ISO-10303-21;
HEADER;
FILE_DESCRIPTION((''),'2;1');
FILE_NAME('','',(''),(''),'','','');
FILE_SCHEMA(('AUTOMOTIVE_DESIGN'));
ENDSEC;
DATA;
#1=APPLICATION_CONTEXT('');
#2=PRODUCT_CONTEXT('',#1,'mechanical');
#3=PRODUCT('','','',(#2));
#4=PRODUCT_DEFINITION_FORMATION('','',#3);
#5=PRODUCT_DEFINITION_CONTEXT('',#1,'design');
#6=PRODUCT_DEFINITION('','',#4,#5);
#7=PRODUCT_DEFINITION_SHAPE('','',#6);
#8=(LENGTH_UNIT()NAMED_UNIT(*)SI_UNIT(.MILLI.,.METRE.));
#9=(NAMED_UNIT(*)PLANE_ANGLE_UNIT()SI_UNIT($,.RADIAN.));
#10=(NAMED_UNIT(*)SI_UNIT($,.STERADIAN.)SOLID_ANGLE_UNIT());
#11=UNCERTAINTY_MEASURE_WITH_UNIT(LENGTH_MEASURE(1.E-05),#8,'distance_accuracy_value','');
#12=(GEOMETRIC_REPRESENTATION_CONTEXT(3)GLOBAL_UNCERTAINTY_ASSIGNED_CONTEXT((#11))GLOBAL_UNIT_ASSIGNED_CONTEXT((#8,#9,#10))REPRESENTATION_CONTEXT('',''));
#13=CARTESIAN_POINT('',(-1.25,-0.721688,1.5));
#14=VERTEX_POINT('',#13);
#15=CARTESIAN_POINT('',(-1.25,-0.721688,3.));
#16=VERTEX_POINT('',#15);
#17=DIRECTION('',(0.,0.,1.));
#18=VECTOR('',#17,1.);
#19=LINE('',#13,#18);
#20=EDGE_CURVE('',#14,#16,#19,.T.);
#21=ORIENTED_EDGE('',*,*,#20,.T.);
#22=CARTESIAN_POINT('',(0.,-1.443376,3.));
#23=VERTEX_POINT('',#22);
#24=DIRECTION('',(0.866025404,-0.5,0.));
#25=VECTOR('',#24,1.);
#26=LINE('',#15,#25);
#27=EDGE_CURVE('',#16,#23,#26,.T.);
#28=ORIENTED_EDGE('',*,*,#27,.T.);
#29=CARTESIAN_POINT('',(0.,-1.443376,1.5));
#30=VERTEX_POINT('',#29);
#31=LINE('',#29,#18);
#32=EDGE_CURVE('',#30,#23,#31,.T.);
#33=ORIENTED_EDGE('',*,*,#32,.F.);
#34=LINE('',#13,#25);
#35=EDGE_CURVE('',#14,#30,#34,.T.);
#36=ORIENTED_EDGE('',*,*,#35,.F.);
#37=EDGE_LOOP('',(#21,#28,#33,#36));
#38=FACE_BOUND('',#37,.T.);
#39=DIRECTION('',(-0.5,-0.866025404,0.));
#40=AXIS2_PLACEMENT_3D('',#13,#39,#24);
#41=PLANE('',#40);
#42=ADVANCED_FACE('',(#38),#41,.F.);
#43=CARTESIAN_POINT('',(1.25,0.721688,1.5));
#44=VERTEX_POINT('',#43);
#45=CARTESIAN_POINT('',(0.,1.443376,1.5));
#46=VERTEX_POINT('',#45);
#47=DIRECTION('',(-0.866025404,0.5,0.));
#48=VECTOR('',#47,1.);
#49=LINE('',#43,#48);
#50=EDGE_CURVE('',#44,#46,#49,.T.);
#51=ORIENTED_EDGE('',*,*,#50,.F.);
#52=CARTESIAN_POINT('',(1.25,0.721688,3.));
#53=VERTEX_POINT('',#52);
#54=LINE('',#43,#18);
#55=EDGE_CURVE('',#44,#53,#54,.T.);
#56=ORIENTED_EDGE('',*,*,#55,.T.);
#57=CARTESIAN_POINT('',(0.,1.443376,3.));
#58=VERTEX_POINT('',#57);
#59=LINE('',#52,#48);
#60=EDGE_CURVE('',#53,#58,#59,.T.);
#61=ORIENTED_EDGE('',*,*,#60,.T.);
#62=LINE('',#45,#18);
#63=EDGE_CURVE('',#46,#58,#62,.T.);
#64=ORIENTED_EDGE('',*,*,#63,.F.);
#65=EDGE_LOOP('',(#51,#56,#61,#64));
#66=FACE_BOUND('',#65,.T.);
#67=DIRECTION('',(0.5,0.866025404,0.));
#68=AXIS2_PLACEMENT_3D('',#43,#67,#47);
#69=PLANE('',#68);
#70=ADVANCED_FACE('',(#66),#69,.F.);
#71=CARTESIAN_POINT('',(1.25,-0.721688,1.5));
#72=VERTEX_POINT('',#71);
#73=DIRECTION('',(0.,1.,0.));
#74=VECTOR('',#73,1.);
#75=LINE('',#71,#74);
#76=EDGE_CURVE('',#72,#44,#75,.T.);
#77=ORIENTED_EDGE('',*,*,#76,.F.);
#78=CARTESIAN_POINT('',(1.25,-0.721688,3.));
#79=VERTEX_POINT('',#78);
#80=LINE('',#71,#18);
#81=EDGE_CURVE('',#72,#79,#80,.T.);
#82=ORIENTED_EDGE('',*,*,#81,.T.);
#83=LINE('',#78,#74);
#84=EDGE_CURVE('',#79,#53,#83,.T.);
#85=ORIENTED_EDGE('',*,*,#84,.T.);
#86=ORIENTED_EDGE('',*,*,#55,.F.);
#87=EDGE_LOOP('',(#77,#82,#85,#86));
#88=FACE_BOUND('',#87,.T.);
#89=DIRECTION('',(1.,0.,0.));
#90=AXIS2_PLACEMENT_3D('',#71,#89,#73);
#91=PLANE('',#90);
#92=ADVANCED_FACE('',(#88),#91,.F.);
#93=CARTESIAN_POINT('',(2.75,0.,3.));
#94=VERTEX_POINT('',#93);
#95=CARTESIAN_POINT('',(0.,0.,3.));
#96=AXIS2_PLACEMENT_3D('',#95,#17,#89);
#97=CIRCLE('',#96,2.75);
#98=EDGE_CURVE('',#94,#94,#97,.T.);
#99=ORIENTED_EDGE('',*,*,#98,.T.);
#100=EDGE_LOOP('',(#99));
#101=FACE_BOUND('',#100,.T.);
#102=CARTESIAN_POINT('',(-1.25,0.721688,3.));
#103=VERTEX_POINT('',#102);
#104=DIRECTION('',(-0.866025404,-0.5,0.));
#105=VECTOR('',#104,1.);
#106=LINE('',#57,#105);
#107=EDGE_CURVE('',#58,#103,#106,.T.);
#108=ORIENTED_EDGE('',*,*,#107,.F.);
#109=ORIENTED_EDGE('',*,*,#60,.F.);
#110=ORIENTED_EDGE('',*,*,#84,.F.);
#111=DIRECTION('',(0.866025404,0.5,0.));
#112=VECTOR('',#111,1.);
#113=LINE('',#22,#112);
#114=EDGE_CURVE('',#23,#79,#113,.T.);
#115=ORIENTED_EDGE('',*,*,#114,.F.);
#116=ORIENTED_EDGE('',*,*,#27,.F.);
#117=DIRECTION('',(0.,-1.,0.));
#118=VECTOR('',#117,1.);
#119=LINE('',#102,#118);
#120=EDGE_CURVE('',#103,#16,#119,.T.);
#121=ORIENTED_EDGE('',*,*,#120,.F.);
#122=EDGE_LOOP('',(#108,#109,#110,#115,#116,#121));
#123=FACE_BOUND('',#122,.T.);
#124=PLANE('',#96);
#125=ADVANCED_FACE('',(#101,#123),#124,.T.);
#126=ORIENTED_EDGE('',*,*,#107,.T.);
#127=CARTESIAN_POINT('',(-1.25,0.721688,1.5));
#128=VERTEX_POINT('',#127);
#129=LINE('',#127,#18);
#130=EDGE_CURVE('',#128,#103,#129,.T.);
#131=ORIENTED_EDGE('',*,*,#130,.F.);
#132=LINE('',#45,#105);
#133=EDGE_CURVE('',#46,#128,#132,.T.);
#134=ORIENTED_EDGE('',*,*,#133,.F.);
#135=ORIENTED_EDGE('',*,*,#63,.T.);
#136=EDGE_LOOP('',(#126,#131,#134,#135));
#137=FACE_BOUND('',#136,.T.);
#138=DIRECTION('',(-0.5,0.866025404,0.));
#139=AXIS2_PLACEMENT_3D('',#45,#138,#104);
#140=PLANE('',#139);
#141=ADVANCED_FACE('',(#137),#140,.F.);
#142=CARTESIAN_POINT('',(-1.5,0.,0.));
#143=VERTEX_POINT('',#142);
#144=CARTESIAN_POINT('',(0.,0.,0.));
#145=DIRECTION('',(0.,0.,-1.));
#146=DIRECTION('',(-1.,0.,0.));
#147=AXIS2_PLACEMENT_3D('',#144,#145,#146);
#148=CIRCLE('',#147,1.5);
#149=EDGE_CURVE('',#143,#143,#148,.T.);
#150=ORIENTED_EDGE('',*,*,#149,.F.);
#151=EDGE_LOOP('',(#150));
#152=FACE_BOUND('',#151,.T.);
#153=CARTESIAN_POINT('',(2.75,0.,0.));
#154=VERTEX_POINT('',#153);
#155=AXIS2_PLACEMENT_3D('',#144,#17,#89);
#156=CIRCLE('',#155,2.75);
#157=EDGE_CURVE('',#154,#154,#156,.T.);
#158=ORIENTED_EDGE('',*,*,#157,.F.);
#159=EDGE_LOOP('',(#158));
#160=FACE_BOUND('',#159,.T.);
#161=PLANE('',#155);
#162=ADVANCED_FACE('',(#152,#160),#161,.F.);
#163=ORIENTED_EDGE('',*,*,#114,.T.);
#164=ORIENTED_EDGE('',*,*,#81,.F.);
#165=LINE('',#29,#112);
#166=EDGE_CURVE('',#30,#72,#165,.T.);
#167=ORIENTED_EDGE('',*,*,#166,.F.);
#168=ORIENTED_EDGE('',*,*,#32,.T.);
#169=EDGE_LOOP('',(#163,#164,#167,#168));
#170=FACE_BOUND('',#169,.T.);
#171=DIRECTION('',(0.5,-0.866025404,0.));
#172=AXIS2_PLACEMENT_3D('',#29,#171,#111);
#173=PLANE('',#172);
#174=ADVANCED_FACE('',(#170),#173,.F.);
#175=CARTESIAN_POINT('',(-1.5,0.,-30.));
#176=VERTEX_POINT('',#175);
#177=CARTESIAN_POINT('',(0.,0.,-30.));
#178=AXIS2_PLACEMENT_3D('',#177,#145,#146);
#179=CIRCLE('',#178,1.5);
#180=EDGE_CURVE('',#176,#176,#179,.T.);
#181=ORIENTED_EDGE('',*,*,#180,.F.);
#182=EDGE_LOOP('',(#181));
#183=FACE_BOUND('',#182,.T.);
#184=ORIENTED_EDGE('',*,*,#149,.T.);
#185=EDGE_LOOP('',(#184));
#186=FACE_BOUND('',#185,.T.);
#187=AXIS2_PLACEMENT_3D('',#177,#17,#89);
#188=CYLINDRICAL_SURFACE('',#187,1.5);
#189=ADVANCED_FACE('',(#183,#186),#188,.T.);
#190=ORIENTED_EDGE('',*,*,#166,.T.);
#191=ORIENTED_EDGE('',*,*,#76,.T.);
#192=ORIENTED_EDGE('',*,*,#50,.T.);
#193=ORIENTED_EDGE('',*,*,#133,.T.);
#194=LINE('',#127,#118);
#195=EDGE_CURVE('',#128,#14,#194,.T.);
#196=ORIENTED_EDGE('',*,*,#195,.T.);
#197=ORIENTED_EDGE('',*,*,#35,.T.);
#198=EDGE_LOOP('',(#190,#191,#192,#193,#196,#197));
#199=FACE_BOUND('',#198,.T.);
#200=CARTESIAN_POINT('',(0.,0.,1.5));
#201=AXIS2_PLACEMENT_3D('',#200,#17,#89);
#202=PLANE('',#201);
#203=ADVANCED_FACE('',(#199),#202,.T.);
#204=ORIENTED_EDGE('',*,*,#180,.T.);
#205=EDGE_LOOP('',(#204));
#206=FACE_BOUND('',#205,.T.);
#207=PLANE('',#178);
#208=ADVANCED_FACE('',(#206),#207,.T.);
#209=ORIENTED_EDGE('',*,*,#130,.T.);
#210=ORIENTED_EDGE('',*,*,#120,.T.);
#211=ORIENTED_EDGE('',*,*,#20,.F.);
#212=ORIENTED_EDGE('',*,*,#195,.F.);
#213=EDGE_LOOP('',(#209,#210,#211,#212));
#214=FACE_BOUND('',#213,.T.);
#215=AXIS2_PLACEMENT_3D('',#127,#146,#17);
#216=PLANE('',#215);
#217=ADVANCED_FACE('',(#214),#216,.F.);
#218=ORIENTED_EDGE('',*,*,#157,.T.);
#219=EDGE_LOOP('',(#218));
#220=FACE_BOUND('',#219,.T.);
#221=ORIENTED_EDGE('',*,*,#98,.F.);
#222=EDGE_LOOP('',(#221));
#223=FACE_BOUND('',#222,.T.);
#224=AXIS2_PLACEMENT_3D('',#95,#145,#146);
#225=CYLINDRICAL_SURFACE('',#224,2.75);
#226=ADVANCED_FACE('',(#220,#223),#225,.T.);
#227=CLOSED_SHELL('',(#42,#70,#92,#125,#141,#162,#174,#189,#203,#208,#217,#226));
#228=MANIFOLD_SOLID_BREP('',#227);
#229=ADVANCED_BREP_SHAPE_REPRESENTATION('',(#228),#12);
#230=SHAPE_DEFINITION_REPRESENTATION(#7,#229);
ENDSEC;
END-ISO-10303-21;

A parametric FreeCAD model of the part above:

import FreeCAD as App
import Part
import Sketcher
Q = App.Units.Quantity

doc = App.newDocument("Part")
body = doc.addObject("PartDesign::Body", "Body")

# Sketch on XY plane
sketch1 = body.newObject("Sketcher::SketchObject", "Sketch")
sketch1.AttachmentSupport = (doc.getObject("XY_Plane"), [""])
sketch1.MapMode = "FlatFace"
sketch1.addGeometry(Part.Circle(App.Vector(0, 0, 0), App.Vector(0, 0, 1), 2.8), False)
sketch1.addConstraint([
    Sketcher.Constraint("Coincident", 0, 3, -1, 1),
    Sketcher.Constraint("Diameter", 0, 5.5),
])
pad1 = body.newObject("PartDesign::Pad", "Pad")
pad1.Profile = sketch1
pad1.Length = 3

# Sketch on XY plane
sketch2 = body.newObject("Sketcher::SketchObject", "Sketch001")
sketch2.AttachmentSupport = (doc.getObject("XY_Plane"), [""])
sketch2.MapMode = "FlatFace"
sketch2.AttachmentOffset = App.Placement(App.Vector(0, 0, 3), App.Rotation())
sketch2.addGeometry([
    Part.LineSegment(App.Vector(0, -1.4, 0), App.Vector(1.2, -0.7, 0)),  # 0
    Part.LineSegment(App.Vector(1.2, -0.7, 0), App.Vector(1.2, 0.7, 0)),  # 1
    Part.LineSegment(App.Vector(1.2, 0.7, 0), App.Vector(0, 1.4, 0)),  # 2
    Part.LineSegment(App.Vector(0, 1.4, 0), App.Vector(-1.2, 0.7, 0)),  # 3
    Part.LineSegment(App.Vector(-1.2, 0.7, 0), App.Vector(-1.2, -0.7, 0)),  # 4
    Part.LineSegment(App.Vector(-1.2, -0.7, 0), App.Vector(0, -1.4, 0)),  # 5
], False)
sketch2.addConstraint([
    Sketcher.Constraint("Coincident", 0, 2, 1, 1),
    Sketcher.Constraint("Coincident", 1, 2, 2, 1),
    Sketcher.Constraint("Coincident", 2, 2, 3, 1),
    Sketcher.Constraint("Coincident", 3, 2, 4, 1),
    Sketcher.Constraint("Coincident", 4, 2, 5, 1),
    Sketcher.Constraint("Coincident", 5, 2, 0, 1),
    Sketcher.Constraint("Vertical", 1),
    Sketcher.Constraint("Vertical", 4),
    Sketcher.Constraint("Symmetric", 0, 2, 3, 2, -1, 1),
    Sketcher.Constraint("Symmetric", 2, 2, 5, 2, -1, 1),
    Sketcher.Constraint("PointOnObject", 2, 2, -2),
    Sketcher.Constraint("Parallel", 2, 5),
    Sketcher.Constraint("Horizontal", 1, 2, 3, 2),
    Sketcher.Constraint("Angle", 0, Q("30 deg")),
    Sketcher.Constraint("DistanceX", 3, 2, 1, 2, 2.5),
    Sketcher.Constraint("DistanceY", 1, 1, 1, 2, 1.443376),
])
pocket1 = body.newObject("PartDesign::Pocket", "Pocket")
pocket1.Profile = sketch2
pocket1.Length = 1.5

# Sketch on XY plane
sketch3 = body.newObject("Sketcher::SketchObject", "Sketch002")
sketch3.AttachmentSupport = (doc.getObject("XY_Plane"), [""])
sketch3.MapMode = "FlatFace"
sketch3.addGeometry(Part.Circle(App.Vector(0, 0, 0), App.Vector(0, 0, 1), 1.5), False)
sketch3.addConstraint([
    Sketcher.Constraint("Coincident", 0, 3, -1, 1),
    Sketcher.Constraint("Diameter", 0, 3.0),
])
pad2 = body.newObject("PartDesign::Pad", "Pad001")
pad2.Profile = sketch3
pad2.Length = 30
pad2.Reversed = True

doc.recompute()
